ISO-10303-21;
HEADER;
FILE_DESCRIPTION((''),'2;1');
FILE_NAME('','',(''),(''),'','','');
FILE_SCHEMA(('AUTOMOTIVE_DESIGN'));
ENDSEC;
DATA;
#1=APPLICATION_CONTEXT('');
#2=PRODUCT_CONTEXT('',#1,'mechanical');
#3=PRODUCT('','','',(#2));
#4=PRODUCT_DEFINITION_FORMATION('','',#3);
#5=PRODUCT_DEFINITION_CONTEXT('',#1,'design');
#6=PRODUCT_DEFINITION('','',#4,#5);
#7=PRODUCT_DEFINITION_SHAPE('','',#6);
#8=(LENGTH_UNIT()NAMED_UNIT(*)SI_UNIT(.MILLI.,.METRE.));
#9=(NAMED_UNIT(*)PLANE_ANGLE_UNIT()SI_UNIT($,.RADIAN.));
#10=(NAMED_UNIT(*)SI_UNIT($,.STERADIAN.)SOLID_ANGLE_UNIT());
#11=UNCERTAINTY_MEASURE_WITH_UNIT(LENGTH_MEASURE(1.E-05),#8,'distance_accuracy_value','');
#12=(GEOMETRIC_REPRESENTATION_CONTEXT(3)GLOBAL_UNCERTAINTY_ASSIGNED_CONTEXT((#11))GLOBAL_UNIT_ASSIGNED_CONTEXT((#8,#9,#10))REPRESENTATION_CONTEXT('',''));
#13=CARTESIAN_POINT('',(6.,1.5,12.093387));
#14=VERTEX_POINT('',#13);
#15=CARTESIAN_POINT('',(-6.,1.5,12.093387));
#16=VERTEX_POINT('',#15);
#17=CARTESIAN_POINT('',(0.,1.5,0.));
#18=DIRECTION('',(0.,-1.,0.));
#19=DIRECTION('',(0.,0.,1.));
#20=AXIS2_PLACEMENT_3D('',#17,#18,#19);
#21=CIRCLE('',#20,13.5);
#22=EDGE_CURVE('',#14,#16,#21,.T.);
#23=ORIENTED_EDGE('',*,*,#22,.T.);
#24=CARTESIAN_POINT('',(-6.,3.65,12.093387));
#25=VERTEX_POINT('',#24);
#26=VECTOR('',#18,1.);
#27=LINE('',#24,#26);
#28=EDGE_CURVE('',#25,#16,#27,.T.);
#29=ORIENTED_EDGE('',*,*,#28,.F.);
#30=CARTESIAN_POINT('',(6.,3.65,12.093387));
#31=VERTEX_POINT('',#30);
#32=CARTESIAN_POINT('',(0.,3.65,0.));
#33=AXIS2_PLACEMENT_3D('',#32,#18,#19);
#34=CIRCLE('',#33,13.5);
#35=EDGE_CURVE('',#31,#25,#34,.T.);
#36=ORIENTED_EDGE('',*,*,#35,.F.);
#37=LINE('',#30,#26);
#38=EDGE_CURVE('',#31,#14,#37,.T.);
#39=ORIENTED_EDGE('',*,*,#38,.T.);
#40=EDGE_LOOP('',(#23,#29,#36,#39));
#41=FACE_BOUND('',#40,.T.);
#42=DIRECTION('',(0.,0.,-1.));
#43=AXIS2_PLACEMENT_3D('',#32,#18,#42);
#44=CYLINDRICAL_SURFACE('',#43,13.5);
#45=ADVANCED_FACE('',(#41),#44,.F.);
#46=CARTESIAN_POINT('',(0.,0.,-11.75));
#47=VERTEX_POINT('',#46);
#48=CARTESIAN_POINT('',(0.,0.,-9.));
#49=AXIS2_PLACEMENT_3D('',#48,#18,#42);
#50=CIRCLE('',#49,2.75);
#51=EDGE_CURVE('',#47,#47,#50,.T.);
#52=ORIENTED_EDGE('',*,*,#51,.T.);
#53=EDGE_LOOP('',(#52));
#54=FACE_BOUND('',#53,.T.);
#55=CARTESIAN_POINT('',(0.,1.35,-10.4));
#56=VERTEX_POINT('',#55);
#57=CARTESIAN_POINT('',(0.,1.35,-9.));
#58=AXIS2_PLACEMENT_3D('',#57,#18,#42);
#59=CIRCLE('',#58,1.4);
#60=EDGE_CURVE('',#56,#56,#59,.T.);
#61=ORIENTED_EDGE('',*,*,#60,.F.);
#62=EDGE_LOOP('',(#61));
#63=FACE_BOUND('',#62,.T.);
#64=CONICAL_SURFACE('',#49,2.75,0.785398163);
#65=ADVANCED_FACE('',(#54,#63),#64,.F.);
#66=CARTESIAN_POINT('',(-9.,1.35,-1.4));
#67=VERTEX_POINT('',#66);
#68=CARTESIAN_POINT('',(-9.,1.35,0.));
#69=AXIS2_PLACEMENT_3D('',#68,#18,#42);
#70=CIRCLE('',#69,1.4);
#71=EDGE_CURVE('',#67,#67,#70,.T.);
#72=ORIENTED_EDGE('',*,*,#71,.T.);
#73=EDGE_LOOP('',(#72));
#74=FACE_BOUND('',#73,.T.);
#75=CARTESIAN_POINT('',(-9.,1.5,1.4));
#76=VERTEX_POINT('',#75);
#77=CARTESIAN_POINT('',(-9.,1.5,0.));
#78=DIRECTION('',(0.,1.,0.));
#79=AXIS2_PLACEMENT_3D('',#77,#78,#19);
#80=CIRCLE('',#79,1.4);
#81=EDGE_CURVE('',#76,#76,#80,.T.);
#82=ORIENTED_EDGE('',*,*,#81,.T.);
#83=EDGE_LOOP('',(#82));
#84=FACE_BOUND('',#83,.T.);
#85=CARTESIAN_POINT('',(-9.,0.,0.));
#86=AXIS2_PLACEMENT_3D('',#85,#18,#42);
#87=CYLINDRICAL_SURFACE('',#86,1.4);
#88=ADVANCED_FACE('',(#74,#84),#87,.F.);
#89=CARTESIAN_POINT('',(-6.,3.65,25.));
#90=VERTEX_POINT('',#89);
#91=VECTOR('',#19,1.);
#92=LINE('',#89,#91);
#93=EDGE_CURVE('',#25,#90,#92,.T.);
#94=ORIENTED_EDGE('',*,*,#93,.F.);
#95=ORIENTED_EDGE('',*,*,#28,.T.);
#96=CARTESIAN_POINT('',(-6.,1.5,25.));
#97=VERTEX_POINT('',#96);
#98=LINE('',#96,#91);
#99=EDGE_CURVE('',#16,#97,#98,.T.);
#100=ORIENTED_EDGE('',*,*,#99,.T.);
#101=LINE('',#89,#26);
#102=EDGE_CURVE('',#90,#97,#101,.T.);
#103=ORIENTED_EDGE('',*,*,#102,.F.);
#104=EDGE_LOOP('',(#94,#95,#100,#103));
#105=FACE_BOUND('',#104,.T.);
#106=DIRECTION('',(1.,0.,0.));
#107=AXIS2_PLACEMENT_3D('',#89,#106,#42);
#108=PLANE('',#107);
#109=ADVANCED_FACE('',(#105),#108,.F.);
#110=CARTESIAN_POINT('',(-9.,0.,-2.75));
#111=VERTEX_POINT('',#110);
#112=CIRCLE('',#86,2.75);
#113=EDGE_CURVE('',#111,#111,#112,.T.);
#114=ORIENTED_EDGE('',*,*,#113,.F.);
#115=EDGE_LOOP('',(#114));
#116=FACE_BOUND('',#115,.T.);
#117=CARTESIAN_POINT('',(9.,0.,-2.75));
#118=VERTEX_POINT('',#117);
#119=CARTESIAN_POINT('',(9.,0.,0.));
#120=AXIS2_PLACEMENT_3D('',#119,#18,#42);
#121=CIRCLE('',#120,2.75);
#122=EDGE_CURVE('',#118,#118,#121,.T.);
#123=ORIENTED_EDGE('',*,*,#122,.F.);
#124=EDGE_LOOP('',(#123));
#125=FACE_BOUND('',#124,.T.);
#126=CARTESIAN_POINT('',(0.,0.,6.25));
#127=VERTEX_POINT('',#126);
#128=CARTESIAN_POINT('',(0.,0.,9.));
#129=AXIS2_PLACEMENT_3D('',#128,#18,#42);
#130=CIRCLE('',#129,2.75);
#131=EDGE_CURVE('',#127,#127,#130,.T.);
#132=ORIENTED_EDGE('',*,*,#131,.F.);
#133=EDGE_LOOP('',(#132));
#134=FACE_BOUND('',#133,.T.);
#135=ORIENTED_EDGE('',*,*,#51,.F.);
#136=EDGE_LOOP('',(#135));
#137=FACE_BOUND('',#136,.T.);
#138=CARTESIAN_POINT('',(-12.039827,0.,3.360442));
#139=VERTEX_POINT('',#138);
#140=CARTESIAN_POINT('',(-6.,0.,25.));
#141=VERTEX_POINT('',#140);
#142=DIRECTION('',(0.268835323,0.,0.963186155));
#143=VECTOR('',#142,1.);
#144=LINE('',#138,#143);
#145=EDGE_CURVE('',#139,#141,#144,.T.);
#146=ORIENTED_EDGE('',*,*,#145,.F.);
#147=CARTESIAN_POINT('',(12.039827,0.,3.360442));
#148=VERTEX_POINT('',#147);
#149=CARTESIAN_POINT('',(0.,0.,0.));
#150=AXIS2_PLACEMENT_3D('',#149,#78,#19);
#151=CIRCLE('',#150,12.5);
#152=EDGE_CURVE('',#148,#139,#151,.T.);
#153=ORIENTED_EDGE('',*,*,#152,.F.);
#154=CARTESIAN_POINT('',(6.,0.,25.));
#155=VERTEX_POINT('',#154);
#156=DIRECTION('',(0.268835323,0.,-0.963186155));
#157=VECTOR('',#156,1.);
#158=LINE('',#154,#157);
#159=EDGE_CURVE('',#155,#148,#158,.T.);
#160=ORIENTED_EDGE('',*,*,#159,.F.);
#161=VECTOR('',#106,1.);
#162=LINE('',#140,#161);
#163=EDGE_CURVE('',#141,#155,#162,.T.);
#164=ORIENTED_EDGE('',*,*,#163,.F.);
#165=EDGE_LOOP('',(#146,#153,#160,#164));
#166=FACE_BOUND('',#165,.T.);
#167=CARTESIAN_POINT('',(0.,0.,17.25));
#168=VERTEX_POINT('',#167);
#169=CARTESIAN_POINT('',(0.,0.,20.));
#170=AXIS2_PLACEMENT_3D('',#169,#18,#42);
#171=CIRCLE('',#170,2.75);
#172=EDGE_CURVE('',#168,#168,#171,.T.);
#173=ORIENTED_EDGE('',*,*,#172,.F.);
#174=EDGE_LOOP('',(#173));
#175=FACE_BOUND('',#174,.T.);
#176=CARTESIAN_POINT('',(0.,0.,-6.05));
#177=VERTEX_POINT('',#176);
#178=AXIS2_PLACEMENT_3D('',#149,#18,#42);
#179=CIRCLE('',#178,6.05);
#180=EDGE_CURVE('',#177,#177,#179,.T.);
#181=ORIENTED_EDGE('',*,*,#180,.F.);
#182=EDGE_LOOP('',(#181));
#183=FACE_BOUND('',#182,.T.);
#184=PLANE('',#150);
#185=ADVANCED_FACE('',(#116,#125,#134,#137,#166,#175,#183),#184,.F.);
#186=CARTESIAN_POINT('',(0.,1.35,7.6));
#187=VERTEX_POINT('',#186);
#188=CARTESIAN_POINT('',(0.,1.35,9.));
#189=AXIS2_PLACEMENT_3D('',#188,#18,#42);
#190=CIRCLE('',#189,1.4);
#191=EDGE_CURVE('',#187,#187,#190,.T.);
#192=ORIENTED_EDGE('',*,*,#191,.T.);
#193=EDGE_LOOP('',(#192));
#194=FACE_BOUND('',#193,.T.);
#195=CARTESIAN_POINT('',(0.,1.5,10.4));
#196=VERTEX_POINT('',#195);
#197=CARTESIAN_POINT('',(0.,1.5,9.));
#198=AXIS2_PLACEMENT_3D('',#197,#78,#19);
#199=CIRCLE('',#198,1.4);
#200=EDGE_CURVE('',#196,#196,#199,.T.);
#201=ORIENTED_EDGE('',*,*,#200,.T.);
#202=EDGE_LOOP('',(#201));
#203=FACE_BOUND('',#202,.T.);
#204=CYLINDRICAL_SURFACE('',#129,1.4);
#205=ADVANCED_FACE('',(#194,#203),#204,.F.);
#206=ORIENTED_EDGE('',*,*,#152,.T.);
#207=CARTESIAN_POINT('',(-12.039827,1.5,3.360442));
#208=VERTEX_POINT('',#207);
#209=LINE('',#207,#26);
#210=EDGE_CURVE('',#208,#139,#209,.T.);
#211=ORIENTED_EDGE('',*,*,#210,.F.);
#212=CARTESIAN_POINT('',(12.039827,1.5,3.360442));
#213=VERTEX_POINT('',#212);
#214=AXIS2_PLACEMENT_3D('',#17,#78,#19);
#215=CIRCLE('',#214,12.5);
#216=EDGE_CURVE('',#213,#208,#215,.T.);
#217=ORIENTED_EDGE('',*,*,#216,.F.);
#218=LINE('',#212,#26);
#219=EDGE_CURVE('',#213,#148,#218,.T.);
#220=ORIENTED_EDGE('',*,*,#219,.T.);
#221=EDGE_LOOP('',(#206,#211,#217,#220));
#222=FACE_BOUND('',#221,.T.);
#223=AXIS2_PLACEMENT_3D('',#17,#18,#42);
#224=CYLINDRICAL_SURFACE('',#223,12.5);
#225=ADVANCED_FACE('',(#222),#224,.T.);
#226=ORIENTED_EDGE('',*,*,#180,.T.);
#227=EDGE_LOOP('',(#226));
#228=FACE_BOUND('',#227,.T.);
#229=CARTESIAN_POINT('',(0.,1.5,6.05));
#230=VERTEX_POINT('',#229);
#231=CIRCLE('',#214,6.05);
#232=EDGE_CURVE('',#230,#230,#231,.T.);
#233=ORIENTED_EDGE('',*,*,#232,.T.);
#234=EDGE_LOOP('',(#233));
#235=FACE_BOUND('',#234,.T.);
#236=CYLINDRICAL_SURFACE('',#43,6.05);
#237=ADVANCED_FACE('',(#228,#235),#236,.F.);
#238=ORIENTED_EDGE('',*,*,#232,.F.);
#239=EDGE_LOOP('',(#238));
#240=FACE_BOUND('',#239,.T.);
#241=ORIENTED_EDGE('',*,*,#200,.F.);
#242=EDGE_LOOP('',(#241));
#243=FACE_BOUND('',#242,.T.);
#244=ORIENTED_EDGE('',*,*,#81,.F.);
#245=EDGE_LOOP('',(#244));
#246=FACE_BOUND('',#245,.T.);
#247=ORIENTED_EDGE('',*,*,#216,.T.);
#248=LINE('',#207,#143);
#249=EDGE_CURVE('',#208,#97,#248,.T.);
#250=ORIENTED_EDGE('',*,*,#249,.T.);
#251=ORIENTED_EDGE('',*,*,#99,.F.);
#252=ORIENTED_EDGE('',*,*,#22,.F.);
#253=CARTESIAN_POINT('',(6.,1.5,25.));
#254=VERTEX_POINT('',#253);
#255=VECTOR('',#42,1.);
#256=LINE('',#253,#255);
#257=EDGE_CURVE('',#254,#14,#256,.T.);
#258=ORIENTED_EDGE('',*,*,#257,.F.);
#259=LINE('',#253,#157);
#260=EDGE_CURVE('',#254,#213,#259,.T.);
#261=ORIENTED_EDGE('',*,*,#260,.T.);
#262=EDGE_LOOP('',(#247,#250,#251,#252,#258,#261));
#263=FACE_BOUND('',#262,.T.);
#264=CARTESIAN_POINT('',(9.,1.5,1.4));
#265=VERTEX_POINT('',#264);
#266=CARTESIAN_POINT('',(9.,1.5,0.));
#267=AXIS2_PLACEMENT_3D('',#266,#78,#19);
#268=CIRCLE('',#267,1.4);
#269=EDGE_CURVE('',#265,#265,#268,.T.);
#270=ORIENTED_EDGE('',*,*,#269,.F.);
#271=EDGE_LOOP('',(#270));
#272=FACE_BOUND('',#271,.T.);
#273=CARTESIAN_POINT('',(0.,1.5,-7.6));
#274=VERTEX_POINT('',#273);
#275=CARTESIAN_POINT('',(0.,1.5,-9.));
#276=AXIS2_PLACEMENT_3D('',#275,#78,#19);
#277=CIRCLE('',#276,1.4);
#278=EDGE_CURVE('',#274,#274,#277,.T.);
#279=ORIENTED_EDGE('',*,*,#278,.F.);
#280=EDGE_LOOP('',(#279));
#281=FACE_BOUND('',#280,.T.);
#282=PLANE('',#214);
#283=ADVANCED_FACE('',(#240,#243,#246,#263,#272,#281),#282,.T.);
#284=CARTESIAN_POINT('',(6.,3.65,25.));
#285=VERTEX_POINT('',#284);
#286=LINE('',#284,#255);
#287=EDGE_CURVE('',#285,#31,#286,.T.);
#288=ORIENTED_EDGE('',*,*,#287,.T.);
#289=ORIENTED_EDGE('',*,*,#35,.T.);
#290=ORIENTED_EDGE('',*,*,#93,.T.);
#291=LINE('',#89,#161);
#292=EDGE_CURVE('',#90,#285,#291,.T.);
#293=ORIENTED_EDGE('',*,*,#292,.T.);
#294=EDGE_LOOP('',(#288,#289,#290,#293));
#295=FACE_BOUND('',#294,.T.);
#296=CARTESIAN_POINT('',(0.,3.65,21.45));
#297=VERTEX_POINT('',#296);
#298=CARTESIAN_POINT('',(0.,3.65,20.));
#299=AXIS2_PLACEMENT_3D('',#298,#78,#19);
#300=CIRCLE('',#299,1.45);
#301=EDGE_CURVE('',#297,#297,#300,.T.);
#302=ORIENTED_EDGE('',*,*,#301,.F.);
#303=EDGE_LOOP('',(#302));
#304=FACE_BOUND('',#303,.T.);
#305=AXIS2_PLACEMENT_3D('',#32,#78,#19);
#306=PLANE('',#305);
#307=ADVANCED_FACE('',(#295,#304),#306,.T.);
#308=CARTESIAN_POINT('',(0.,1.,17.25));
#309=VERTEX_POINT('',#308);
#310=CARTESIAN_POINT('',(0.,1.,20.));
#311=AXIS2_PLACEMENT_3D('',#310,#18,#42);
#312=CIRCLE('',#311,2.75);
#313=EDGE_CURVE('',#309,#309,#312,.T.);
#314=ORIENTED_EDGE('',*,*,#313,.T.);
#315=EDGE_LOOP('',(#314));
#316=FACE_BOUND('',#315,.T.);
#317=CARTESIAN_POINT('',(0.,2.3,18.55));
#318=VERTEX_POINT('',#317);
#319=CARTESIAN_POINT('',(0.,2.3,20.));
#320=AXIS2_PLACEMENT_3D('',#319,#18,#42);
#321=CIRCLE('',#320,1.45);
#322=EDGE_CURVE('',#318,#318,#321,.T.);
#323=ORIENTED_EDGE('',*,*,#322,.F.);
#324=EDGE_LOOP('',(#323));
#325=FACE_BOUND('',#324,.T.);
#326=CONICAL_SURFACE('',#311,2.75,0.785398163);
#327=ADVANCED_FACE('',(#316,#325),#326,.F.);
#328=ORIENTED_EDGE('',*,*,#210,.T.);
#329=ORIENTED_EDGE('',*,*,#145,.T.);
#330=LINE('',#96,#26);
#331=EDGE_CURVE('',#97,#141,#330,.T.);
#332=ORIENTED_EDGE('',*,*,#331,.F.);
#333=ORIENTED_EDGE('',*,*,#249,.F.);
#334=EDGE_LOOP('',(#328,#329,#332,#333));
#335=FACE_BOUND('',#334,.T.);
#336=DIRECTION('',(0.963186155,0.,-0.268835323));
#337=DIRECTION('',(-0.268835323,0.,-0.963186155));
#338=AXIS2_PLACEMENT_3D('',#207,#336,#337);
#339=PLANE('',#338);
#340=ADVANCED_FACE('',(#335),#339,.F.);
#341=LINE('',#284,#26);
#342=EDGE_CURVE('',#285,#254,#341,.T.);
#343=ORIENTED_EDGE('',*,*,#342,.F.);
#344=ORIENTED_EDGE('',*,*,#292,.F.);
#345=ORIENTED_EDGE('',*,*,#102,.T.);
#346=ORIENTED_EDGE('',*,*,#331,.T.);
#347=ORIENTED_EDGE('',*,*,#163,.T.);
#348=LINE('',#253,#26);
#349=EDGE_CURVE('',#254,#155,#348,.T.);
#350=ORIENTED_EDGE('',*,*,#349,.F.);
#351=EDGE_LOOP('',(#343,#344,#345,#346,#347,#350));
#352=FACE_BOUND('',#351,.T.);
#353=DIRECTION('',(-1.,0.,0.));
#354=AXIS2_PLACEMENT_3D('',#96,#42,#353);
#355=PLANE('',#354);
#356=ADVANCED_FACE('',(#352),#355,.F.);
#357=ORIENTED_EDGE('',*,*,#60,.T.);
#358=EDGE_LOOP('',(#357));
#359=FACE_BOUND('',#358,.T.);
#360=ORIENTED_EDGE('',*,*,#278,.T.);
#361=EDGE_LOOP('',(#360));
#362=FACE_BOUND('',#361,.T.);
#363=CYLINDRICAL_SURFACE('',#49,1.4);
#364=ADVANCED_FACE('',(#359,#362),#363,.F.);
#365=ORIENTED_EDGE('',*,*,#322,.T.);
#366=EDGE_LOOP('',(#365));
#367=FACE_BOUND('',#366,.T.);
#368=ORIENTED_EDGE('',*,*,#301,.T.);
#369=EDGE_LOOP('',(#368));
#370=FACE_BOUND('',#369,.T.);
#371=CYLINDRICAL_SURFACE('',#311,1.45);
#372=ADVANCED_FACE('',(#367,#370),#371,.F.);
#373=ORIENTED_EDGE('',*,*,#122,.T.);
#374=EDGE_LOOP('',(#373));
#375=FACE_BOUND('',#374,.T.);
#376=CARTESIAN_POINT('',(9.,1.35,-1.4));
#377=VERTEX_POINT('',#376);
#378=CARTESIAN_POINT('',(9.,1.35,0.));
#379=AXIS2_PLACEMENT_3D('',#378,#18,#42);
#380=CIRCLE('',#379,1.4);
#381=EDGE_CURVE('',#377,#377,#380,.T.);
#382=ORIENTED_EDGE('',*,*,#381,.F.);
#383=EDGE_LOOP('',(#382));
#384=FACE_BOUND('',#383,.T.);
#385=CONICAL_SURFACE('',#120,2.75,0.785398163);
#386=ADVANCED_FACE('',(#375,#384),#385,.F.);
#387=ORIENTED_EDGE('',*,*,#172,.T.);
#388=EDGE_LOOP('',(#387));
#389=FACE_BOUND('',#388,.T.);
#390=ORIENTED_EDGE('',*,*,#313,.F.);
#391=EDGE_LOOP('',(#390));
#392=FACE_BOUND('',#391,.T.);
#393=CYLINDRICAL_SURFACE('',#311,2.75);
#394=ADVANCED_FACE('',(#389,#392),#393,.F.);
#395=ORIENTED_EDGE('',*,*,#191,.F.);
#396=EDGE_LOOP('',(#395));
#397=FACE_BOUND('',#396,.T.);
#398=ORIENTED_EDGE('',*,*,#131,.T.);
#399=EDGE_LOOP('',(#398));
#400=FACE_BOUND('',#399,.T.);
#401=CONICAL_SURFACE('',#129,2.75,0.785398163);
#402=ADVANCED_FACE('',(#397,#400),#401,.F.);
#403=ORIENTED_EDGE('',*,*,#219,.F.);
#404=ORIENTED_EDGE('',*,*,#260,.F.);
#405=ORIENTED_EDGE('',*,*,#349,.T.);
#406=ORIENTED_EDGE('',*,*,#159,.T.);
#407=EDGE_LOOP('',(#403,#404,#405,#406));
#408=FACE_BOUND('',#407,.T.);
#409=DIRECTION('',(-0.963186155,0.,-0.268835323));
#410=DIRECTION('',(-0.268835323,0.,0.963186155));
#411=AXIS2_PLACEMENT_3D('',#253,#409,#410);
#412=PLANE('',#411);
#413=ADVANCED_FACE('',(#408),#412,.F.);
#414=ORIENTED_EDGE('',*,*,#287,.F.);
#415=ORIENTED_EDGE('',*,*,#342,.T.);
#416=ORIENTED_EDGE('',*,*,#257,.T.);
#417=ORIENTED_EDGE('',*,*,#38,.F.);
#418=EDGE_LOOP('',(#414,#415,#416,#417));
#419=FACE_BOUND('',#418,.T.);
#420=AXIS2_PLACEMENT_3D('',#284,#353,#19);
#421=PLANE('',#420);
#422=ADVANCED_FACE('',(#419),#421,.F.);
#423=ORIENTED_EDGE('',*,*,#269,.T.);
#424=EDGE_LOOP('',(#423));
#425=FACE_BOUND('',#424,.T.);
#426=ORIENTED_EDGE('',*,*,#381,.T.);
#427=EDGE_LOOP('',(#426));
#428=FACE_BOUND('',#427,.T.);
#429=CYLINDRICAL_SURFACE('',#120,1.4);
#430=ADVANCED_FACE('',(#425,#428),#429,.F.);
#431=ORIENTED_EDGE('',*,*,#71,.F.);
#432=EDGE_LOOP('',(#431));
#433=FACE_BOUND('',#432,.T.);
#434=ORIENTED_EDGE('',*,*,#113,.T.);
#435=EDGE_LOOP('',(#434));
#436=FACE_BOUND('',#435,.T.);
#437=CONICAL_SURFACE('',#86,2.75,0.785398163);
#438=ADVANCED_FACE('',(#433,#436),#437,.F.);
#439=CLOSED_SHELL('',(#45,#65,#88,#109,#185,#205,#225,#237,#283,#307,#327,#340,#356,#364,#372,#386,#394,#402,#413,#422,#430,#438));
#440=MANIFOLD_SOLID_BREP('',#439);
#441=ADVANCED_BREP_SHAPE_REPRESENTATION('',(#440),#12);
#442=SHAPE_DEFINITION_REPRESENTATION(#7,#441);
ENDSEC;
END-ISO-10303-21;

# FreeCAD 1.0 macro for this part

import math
import FreeCAD as App
import Part
import Sketcher
from FreeCAD import Vector
Q = App.Units.Quantity

doc = App.newDocument("Part")
body = doc.addObject("PartDesign::Body", "Body")

sketch1 = body.newObject("Sketcher::SketchObject", "Sketch")
sketch1.AttachmentSupport = (doc.getObject("XZ_Plane"), [""])
sketch1.MapMode = "FlatFace"
sketch1.addGeometry([
    Part.LineSegment(Vector(-12.039827, 3.360442, 0), Vector(-6, 25, 0)),
    Part.LineSegment(Vector(-6, 25, 0), Vector(6, 25, 0)),
    Part.LineSegment(Vector(6, 25, 0), Vector(12.039827, 3.360442, 0)),
    Part.ArcOfCircle(Part.Circle(Vector(0, 0, 0), Vector(0, 0, 1), 12.5), math.radians(164.405026), math.radians(375.594974)),
], False)
sketch1.addConstraint([
    Sketcher.Constraint("Coincident", 0, 2, 1, 1),
    Sketcher.Constraint("Coincident", 1, 2, 2, 1),
    Sketcher.Constraint("Tangent", 2, 2, 3, 2),
    Sketcher.Constraint("Tangent", 3, 1, 0, 1),
    Sketcher.Constraint("Horizontal", 1),
    Sketcher.Constraint("Coincident", 3, 3, -1, 1),
    Sketcher.Constraint("Horizontal", 2, 2, 3, 1),
    Sketcher.Constraint("Radius", 3, Q("12.5 mm")),
    Sketcher.Constraint("DistanceX", 1, 1, 1, 2, Q("12 mm")),
    Sketcher.Constraint("DistanceY", -1, 1, 0, 2, Q("25 mm")),
])
pad1 = body.newObject("PartDesign::Pad", "Pad")
pad1.Profile = sketch1
pad1.Length = 1.5
pad1.Reversed = True

sketch2 = body.newObject("Sketcher::SketchObject", "Sketch001")
sketch2.AttachmentSupport = (doc.getObject("XZ_Plane"), [""])
sketch2.MapMode = "FlatFace"
sketch2.AttachmentOffset = App.Placement(Vector(0, 0, -1.5), App.Rotation())
sketch2.addGeometry([
    Part.LineSegment(Vector(-6, 12.093387, 0), Vector(-6, 25, 0)),
    Part.LineSegment(Vector(-6, 25, 0), Vector(6, 25, 0)),
    Part.LineSegment(Vector(6, 25, 0), Vector(6, 12.093387, 0)),
    Part.ArcOfCircle(Part.Circle(Vector(0, 0, 0), Vector(0, 0, 1), 13.5), math.radians(63.6122), math.radians(116.3878)),
], False)
sketch2.addConstraint([
    Sketcher.Constraint("Coincident", 0, 2, 1, 1),
    Sketcher.Constraint("Coincident", 1, 2, 2, 1),
    Sketcher.Constraint("Coincident", 2, 2, 3, 1),
    Sketcher.Constraint("Coincident", 3, 2, 0, 1),
    Sketcher.Constraint("Vertical", 0),
    Sketcher.Constraint("Horizontal", 1),
    Sketcher.Constraint("Vertical", 2),
    Sketcher.Constraint("Coincident", 3, 3, -1, 1),
    Sketcher.Constraint("Horizontal", 2, 2, 3, 2),
    Sketcher.Constraint("Radius", 3, Q("13.5 mm")),
    Sketcher.Constraint("DistanceX", 1, 1, 1, 2, Q("12 mm")),
    Sketcher.Constraint("DistanceY", -1, 1, 0, 2, Q("25 mm")),
])
pad2 = body.newObject("PartDesign::Pad", "Pad001")
pad2.Profile = sketch2
pad2.Length = 2.15
pad2.Reversed = True

sketch3 = body.newObject("Sketcher::SketchObject", "Sketch002")
sketch3.AttachmentSupport = (doc.getObject("XZ_Plane"), [""])
sketch3.MapMode = "FlatFace"
sketch3.addGeometry([
    Part.Circle(Vector(0, 9, 0), Vector(0, 0, 1), 1.4),
    Part.Circle(Vector(-9, 0, 0), Vector(0, 0, 1), 1.4),
    Part.Circle(Vector(0, -9, 0), Vector(0, 0, 1), 1.4),
    Part.Circle(Vector(9, 0, 0), Vector(0, 0, 1), 1.4),
], False)
sketch3.addConstraint([
    Sketcher.Constraint("Equal", 0, 1),
    Sketcher.Constraint("Equal", 1, 2),
    Sketcher.Constraint("Equal", 2, 3),
    Sketcher.Constraint("Symmetric", 0, 3, 2, 3, -1, 1),
    Sketcher.Constraint("Symmetric", 1, 3, 3, 3, -1, 1),
    Sketcher.Constraint("PointOnObject", 0, 3, -2),
    Sketcher.Constraint("PointOnObject", 1, 3, -1),
    Sketcher.Constraint("Diameter", 0, Q("2.8 mm")),
    Sketcher.Constraint("DistanceY", -1, 1, 0, 3, Q("9 mm")),
    Sketcher.Constraint("DistanceX", 1, 3, -1, 1, Q("9 mm")),
])
doc.recompute()
hole = body.newObject("PartDesign::Hole", "Hole")
hole.Profile = sketch3
hole.ThreadType = "None"
hole.Diameter = 2.8
hole.DepthType = "ThroughAll"
hole.HoleCutType = "Countersink"
hole.HoleCutDiameter = 5.5
hole.HoleCutCountersinkAngle = 90

sketch4 = body.newObject("Sketcher::SketchObject", "Sketch003")
sketch4.AttachmentSupport = (doc.getObject("XZ_Plane"), [""])
sketch4.MapMode = "FlatFace"
sketch4.addGeometry(Part.Circle(Vector(0, 0, 0), Vector(0, 0, 1), 6.05), False)
sketch4.addConstraint([
    Sketcher.Constraint("Coincident", 0, 3, -1, 1),
    Sketcher.Constraint("Diameter", 0, Q("12.1 mm")),
])
pocket1 = body.newObject("PartDesign::Pocket", "Pocket")
pocket1.Profile = sketch4
pocket1.Type = "ThroughAll"

sketch5 = body.newObject("Sketcher::SketchObject", "Sketch004")
sketch5.AttachmentSupport = (doc.getObject("XZ_Plane"), [""])
sketch5.MapMode = "FlatFace"
sketch5.addGeometry(Part.Circle(Vector(0, 20, 0), Vector(0, 0, 1), 2.75), False)
sketch5.addConstraint([
    Sketcher.Constraint("PointOnObject", 0, 3, -2),
    Sketcher.Constraint("Diameter", 0, Q("5.5 mm")),
    Sketcher.Constraint("DistanceY", -1, 1, 0, 3, Q("20 mm")),
])
pocket2 = body.newObject("PartDesign::Pocket", "Pocket001")
pocket2.Profile = sketch5
pocket2.Length = 1

sketch6 = body.newObject("Sketcher::SketchObject", "Sketch005")
sketch6.AttachmentSupport = (doc.getObject("XZ_Plane"), [""])
sketch6.MapMode = "FlatFace"
sketch6.AttachmentOffset = App.Placement(Vector(0, 0, -1), App.Rotation())
sketch6.addGeometry(Part.Circle(Vector(0, 20, 0), Vector(0, 0, 1), 1.45), False)
sketch6.addConstraint([
    Sketcher.Constraint("PointOnObject", 0, 3, -2),
    Sketcher.Constraint("Diameter", 0, Q("2.9 mm")),
    Sketcher.Constraint("DistanceY", -1, 1, 0, 3, Q("20 mm")),
])
doc.recompute()
hole2 = body.newObject("PartDesign::Hole", "Hole001")
hole2.Profile = sketch6
hole2.ThreadType = "None"
hole2.Diameter = 2.9
hole2.DepthType = "Dimension"
hole2.Depth = 8
hole2.DrillPoint = "Angled"
hole2.DrillPointAngle = 118
hole2.HoleCutType = "Countersink"
hole2.HoleCutDiameter = 5.5
hole2.HoleCutCountersinkAngle = 90

doc.recompute()
